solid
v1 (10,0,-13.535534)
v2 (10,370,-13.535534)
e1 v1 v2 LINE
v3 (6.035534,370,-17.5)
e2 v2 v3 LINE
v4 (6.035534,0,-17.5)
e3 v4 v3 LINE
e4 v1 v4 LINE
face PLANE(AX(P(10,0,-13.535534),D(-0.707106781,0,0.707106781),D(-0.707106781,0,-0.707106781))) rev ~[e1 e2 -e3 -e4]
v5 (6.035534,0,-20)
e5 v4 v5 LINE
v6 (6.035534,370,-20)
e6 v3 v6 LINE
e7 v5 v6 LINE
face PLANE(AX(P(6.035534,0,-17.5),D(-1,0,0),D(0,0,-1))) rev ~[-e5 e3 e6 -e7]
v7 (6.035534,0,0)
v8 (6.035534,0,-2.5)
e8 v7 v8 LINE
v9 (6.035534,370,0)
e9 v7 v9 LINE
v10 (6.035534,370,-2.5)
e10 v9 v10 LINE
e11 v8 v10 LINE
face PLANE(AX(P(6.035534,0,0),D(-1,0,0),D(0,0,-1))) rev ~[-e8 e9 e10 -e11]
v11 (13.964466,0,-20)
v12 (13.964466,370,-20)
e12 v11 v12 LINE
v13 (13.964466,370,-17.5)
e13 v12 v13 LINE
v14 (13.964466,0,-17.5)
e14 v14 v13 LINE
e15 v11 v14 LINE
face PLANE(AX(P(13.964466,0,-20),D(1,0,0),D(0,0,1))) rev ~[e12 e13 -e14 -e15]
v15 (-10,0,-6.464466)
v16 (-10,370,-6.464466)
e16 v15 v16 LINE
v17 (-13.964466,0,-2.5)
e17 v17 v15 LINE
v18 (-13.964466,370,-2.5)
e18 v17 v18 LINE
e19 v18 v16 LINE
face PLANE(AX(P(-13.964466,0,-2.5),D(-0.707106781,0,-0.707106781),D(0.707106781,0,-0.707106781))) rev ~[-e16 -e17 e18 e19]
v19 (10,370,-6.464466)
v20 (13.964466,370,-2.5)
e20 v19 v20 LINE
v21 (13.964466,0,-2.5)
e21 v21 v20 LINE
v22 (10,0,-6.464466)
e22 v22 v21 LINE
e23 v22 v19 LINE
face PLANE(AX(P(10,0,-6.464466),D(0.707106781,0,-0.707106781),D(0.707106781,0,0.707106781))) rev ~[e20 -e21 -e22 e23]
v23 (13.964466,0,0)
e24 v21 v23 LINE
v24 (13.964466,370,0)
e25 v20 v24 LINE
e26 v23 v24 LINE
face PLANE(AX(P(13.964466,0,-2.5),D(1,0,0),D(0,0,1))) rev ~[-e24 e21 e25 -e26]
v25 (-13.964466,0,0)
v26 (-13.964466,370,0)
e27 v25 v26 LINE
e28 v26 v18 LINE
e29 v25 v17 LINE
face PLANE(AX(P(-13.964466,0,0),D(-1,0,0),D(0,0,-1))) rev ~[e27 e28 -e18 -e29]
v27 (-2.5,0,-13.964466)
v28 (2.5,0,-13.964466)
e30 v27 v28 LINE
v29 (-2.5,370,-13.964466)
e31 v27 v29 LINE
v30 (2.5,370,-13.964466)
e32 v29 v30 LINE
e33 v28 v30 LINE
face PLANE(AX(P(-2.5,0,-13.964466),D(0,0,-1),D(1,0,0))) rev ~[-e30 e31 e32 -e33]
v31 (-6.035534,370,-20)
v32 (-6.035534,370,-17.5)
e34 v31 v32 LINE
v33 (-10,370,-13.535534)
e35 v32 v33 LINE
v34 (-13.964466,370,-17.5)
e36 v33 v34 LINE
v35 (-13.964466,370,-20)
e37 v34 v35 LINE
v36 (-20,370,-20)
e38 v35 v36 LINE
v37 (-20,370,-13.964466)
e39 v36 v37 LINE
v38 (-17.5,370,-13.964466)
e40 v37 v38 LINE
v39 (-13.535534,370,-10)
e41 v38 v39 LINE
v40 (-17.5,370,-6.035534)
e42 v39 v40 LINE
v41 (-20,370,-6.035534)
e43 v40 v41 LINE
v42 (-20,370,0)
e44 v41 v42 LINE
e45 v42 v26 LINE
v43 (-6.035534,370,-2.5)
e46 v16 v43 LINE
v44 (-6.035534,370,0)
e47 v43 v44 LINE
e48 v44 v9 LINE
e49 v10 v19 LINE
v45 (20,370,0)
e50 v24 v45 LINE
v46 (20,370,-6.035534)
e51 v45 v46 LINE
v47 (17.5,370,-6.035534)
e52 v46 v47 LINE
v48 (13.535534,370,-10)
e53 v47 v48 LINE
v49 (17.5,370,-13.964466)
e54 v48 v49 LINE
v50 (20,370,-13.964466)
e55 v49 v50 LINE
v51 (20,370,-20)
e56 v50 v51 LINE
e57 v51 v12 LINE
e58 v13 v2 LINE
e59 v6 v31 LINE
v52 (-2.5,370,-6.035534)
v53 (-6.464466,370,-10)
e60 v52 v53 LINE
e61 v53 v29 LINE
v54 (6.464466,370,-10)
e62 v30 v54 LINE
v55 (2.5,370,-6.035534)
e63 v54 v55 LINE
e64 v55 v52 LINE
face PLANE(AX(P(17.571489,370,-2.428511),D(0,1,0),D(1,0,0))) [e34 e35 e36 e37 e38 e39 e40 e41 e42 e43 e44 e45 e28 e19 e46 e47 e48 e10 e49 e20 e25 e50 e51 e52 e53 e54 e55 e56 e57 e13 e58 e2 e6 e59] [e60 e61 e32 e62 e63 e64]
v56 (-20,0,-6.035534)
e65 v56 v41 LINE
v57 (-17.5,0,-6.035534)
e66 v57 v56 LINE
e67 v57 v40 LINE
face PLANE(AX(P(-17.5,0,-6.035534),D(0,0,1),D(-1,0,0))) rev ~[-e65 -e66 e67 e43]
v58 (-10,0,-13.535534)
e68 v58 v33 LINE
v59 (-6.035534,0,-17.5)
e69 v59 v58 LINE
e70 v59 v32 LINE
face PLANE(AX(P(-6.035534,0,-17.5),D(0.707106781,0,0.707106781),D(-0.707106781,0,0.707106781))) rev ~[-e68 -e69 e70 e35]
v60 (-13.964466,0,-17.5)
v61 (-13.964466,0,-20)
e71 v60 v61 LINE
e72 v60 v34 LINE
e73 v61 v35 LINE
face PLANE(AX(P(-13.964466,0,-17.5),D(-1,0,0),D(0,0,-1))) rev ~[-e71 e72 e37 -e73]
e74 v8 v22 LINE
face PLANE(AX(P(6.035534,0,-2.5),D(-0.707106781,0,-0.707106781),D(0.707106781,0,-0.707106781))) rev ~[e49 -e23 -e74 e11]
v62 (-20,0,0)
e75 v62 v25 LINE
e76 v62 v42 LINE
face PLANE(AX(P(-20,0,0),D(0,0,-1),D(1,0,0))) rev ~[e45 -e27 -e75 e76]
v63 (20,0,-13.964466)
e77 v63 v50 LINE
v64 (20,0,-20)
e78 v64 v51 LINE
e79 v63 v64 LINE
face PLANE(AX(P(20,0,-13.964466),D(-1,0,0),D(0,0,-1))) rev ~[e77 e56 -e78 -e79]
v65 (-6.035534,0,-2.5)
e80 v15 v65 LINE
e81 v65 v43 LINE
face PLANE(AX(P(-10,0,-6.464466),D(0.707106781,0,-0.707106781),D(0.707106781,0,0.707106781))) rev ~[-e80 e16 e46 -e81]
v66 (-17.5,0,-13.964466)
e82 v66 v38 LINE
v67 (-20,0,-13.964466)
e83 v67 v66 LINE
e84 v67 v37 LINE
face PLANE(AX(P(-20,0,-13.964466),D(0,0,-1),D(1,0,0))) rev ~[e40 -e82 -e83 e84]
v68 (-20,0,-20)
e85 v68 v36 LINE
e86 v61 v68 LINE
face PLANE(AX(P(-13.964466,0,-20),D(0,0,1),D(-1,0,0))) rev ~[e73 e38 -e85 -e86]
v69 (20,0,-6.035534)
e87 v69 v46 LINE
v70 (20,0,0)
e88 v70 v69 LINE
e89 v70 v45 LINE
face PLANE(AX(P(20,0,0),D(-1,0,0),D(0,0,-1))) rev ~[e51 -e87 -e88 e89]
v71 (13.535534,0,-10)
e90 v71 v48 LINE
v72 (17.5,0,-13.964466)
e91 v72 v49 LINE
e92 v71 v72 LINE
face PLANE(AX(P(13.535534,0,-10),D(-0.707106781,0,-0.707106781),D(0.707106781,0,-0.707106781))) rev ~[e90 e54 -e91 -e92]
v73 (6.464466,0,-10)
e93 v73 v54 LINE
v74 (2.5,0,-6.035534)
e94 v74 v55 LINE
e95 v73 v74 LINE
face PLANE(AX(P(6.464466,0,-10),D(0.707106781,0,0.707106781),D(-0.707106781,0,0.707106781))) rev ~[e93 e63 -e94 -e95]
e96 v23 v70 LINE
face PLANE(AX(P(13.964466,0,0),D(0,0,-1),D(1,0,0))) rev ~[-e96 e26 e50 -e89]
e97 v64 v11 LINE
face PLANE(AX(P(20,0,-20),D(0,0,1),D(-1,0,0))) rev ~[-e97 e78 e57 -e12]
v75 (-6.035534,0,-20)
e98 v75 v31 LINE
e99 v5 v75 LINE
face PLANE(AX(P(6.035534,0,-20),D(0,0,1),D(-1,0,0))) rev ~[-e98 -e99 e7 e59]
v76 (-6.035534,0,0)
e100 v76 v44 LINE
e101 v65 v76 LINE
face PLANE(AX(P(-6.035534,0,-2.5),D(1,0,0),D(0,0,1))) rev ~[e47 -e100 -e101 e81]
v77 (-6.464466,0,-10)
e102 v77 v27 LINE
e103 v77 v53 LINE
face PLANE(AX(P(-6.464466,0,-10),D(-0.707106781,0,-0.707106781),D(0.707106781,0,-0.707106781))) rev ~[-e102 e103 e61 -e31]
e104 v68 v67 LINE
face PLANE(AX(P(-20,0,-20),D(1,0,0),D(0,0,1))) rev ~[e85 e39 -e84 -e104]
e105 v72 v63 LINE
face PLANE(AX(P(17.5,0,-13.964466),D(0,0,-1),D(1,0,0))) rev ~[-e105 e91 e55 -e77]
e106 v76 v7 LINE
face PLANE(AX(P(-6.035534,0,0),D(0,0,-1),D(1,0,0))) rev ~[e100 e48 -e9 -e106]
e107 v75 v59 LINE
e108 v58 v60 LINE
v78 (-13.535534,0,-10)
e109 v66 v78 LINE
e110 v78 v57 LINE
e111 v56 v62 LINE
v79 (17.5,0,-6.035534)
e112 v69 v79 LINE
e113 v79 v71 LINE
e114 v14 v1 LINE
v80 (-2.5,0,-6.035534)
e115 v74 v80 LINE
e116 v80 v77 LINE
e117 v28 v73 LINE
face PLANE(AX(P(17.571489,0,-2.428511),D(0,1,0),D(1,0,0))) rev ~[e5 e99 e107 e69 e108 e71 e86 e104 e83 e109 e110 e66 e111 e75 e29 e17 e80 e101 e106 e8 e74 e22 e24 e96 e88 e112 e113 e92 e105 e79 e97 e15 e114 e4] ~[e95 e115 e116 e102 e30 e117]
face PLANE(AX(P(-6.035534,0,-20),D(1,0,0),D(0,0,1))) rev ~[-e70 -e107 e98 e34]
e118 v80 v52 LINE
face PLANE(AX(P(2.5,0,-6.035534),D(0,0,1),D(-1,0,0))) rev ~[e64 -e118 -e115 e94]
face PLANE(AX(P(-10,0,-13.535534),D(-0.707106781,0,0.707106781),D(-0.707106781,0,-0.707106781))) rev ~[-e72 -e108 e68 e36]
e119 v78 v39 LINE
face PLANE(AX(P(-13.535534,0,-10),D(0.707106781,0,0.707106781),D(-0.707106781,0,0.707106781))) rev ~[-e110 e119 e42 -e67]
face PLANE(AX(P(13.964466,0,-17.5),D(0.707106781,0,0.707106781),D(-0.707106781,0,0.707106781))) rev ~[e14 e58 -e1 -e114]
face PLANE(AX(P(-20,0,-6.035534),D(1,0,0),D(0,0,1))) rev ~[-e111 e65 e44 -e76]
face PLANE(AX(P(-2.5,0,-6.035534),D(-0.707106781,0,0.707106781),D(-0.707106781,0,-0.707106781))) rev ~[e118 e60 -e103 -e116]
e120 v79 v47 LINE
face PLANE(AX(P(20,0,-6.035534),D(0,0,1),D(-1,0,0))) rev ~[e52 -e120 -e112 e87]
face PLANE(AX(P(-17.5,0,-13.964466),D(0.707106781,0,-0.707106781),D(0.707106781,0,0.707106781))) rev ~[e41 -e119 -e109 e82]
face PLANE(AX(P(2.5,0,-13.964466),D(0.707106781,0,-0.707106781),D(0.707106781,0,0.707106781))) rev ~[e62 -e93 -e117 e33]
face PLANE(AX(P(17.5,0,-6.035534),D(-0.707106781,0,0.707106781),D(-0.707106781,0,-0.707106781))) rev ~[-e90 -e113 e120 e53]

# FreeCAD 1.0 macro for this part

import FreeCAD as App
import Part
import Sketcher


def add_polygon(sketch, points):
    """Adds a closed chain of lines whose ends are joined by coincident constraints."""
    first, n = sketch.GeometryCount, len(points)
    for a, b in zip(points, points[1:] + points[:1]):
        sketch.addGeometry(Part.LineSegment(App.Vector(*a, 0), App.Vector(*b, 0)), False)
    for i in range(n):
        sketch.addConstraint(Sketcher.Constraint("Coincident", first + i, 2, first + (i + 1) % n, 1))

doc = App.newDocument("Part")
body = doc.addObject("PartDesign::Body", "Body")

sketch1 = body.newObject("Sketcher::SketchObject", "Sketch")
sketch1.AttachmentSupport = (doc.getObject("XZ_Plane"), [""])
sketch1.MapMode = "FlatFace"
add_polygon(sketch1, [(14, -2.5), (14, 0), (20, 0), (20, -6), (17.5, -6), (13.5, -10), (17.5, -14), (20, -14), (20, -20), (14, -20), (14, -17.5), (10, -13.5), (6, -17.5), (6, -20), (-6, -20), (-6, -17.5), (-10, -13.5), (-14, -17.5), (-14, -20), (-20, -20), (-20, -14), (-17.5, -14), (-13.5, -10), (-17.5, -6), (-20, -6), (-20, 0), (-14, 0), (-14, -2.5), (-10, -6.5), (-6, -2.5), (-6, 0), (6, 0), (6, -2.5), (10, -6.5)])
add_polygon(sketch1, [(6.5, -10), (2.5, -6), (-2.5, -6), (-6.5, -10), (-2.5, -14), (2.5, -14)])
sketch1.addConstraint(Sketcher.Constraint("Vertical", 0))
sketch1.addConstraint(Sketcher.Constraint("Horizontal", 1))
sketch1.addConstraint(Sketcher.Constraint("Vertical", 2))
sketch1.addConstraint(Sketcher.Constraint("Horizontal", 3))
sketch1.addConstraint(Sketcher.Constraint("Horizontal", 6))
sketch1.addConstraint(Sketcher.Constraint("Vertical", 7))
sketch1.addConstraint(Sketcher.Constraint("Horizontal", 8))
sketch1.addConstraint(Sketcher.Constraint("Vertical", 9))
sketch1.addConstraint(Sketcher.Constraint("Vertical", 12))
sketch1.addConstraint(Sketcher.Constraint("Horizontal", 13))
sketch1.addConstraint(Sketcher.Constraint("Vertical", 14))
sketch1.addConstraint(Sketcher.Constraint("Vertical", 17))
sketch1.addConstraint(Sketcher.Constraint("Horizontal", 18))
sketch1.addConstraint(Sketcher.Constraint("Vertical", 19))
sketch1.addConstraint(Sketcher.Constraint("Horizontal", 20))
sketch1.addConstraint(Sketcher.Constraint("Horizontal", 23))
sketch1.addConstraint(Sketcher.Constraint("Vertical", 24))
sketch1.addConstraint(Sketcher.Constraint("Horizontal", 25))
sketch1.addConstraint(Sketcher.Constraint("Vertical", 26))
sketch1.addConstraint(Sketcher.Constraint("Vertical", 29))
sketch1.addConstraint(Sketcher.Constraint("Horizontal", 30))
sketch1.addConstraint(Sketcher.Constraint("Vertical", 31))
sketch1.addConstraint(Sketcher.Constraint("Horizontal", 35))
sketch1.addConstraint(Sketcher.Constraint("Horizontal", 38))
sketch1.addConstraint(Sketcher.Constraint("Symmetric", 1, 2, 24, 2, -1, 1))
sketch1.addConstraint(Sketcher.Constraint("Symmetric", 29, 2, 30, 2, -1, 1))
sketch1.addConstraint(Sketcher.Constraint("Symmetric", 11, 2, 14, 2, -2))
sketch1.addConstraint(Sketcher.Constraint("Symmetric", 10, 2, 15, 2, -2))
sketch1.addConstraint(Sketcher.Constraint("Symmetric", 9, 2, 16, 2, -2))
sketch1.addConstraint(Sketcher.Constraint("Symmetric", 7, 2, 18, 2, -2))
sketch1.addConstraint(Sketcher.Constraint("Symmetric", 5, 2, 20, 2, -2))
sketch1.addConstraint(Sketcher.Constraint("Symmetric", 4, 2, 21, 2, -2))
sketch1.addConstraint(Sketcher.Constraint("Symmetric", 3, 2, 22, 2, -2))
sketch1.addConstraint(Sketcher.Constraint("Symmetric", 0, 2, 25, 2, -2))
sketch1.addConstraint(Sketcher.Constraint("Symmetric", 27, 2, 32, 2, -2))
sketch1.addConstraint(Sketcher.Constraint("Symmetric", 36, 2, 39, 2, -2))
sketch1.addConstraint(Sketcher.Constraint("Perpendicular", 4, 5))
sketch1.addConstraint(Sketcher.Constraint("Parallel", 5, 10))
sketch1.addConstraint(Sketcher.Constraint("Perpendicular", 10, 11))
sketch1.addConstraint(Sketcher.Constraint("Perpendicular", 11, 15))
sketch1.addConstraint(Sketcher.Constraint("Parallel", 22, 27))
sketch1.addConstraint(Sketcher.Constraint("Perpendicular", 27, 28))
sketch1.addConstraint(Sketcher.Constraint("Perpendicular", 28, 32))
sketch1.addConstraint(Sketcher.Constraint("Perpendicular", 32, 33))
sketch1.addConstraint(Sketcher.Constraint("Perpendicular", 33, 34))
sketch1.addConstraint(Sketcher.Constraint("Perpendicular", 34, 36))
sketch1.addConstraint(Sketcher.Constraint("Perpendicular", 36, 37))
sketch1.addConstraint(Sketcher.Constraint("Perpendicular", 37, 39))
sketch1.addConstraint(Sketcher.Constraint("Horizontal", 9, 2, 11, 2))
sketch1.addConstraint(Sketcher.Constraint("Horizontal", 8, 2, 12, 2))
sketch1.addConstraint(Sketcher.Constraint("Horizontal", 26, 2, 28, 2))
sketch1.addConstraint(Sketcher.Constraint("Horizontal", 23, 2, 34, 2))
sketch1.addConstraint(Sketcher.Constraint("Horizontal", 21, 2, 36, 2))
sketch1.addConstraint(Sketcher.Constraint("Horizontal", 20, 2, 37, 2))
sketch1.addConstraint(Sketcher.Constraint("Vertical", 3, 2, 5, 2))
sketch1.addConstraint(Sketcher.Constraint("Vertical", 2, 2, 6, 2))
sketch1.addConstraint(Sketcher.Constraint("Vertical", 0, 2, 8, 2))
sketch1.addConstraint(Sketcher.Constraint("Vertical", 15, 2, 27, 2))
sketch1.addConstraint(Sketcher.Constraint("Equal", 23, 0))
sketch1.addConstraint(Sketcher.Constraint("Equal", 25, 2))
sketch1.addConstraint(Sketcher.Constraint("Equal", 2, 7))
sketch1.addConstraint(Sketcher.Constraint("Equal", 0, 9))
sketch1.addConstraint(Sketcher.Constraint("Equal", 5, 10))
sketch1.addConstraint(Sketcher.Constraint("DistanceX", 35, 2, 35, 1, 5.0))
sketch1.addConstraint(Sketcher.Constraint("DistanceX", 3, 2, 3, 1, 2.5))
sketch1.addConstraint(Sketcher.Constraint("DistanceX", -1, 1, 1, 2, 20.0))
sketch1.addConstraint(Sketcher.Constraint("DistanceY", 4, 2, -1, 1, 10.0))
sketch1.addConstraint(Sketcher.Constraint("Distance", 4, 5.606602))
pad1 = body.newObject("PartDesign::Pad", "Pad")
pad1.Profile = sketch1
pad1.Length = 370
pad1.Reversed = True

doc.recompute()
